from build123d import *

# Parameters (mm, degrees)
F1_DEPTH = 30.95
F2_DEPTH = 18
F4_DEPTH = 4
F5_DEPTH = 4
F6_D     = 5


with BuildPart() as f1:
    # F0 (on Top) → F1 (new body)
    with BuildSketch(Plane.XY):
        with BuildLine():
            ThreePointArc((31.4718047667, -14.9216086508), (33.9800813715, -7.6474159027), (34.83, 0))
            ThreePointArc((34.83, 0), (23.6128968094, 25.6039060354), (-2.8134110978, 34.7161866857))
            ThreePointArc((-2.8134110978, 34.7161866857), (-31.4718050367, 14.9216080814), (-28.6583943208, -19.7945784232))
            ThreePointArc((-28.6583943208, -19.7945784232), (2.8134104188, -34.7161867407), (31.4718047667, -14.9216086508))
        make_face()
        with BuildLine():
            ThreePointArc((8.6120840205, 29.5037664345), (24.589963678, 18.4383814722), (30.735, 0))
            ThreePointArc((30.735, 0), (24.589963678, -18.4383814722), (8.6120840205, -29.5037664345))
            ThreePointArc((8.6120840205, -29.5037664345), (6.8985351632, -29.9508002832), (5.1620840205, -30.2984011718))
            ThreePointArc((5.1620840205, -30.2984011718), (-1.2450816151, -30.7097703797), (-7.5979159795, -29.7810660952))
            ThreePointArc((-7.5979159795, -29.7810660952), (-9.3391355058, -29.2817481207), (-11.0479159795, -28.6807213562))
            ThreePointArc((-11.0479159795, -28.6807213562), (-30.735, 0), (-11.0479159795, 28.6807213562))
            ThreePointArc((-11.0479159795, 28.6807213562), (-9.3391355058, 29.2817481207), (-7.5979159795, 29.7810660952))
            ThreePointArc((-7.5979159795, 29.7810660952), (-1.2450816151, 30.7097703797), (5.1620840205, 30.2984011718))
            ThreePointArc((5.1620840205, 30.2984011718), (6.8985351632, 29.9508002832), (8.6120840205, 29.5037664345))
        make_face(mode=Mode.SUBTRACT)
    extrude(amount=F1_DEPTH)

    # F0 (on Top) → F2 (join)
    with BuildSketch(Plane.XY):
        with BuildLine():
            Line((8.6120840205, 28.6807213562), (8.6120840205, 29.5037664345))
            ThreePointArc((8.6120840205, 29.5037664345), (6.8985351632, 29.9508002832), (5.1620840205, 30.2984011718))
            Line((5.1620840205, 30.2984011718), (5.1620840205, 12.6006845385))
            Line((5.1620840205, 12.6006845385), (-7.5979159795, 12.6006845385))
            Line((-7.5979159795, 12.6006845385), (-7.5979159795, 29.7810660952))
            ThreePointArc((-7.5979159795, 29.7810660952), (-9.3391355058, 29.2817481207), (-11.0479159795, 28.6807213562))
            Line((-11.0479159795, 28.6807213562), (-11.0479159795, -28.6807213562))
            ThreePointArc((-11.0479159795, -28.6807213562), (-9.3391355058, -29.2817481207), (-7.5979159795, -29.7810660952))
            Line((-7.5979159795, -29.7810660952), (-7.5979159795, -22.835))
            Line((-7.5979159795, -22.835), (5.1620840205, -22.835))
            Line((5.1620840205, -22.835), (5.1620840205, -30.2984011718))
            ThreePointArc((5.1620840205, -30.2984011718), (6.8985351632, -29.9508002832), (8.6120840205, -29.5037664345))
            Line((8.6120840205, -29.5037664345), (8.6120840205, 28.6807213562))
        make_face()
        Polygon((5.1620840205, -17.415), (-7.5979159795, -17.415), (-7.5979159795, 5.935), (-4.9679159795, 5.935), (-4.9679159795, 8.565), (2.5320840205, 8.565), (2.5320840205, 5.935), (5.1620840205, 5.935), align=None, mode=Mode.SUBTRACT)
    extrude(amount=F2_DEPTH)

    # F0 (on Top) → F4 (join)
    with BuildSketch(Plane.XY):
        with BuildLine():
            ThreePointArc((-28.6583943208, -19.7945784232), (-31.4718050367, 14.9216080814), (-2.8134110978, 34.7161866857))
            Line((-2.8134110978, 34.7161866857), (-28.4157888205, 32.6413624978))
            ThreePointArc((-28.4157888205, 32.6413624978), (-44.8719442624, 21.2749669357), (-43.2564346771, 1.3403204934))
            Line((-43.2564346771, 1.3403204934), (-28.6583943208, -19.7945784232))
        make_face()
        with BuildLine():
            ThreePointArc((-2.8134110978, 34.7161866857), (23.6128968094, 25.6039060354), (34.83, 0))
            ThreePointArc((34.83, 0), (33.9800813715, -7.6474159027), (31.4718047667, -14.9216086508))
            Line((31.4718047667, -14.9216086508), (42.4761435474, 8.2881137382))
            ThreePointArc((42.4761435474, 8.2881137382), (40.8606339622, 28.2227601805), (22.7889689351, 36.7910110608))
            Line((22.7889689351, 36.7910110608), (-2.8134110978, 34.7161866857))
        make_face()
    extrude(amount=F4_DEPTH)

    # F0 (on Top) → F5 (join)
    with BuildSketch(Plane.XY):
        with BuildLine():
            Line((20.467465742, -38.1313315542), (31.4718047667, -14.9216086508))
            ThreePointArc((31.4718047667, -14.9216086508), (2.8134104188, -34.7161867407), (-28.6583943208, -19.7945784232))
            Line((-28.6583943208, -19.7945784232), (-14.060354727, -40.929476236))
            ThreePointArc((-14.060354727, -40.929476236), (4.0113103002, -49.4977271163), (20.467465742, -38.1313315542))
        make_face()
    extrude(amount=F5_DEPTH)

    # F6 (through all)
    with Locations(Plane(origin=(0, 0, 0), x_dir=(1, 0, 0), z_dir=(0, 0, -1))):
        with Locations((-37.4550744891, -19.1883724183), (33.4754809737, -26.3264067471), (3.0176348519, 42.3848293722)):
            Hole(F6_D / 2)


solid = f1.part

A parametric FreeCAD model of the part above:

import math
import FreeCAD as App
import Part
import Sketcher


def add_polygon(sketch, points):
    """Adds a closed chain of lines whose ends are joined by coincident constraints."""
    first, n = sketch.GeometryCount, len(points)
    for a, b in zip(points, points[1:] + points[:1]):
        sketch.addGeometry(Part.LineSegment(App.Vector(*a, 0), App.Vector(*b, 0)), False)
    for i in range(n):
        sketch.addConstraint(Sketcher.Constraint("Coincident", first + i, 2, first + (i + 1) % n, 1))

doc = App.newDocument("Part")
params = doc.addObject("Spreadsheet::Sheet", "Params")
for row, (alias, value) in enumerate([
    ("sketch1_radius", "34.83 mm"),
    ("pad1_length", "30.95 mm"),
    ("sketch2_width", "7.5 mm"),
    ("sketch2_width2", "12.76 mm"),
    ("sketch2_height", "23.35 mm"),
    ("pad2_length", "18 mm"),
    ("sketch3_radius", "20 mm"),
    ("sketch3_radius2", "34.83 mm"),
    ("pad3_length", "4 mm"),
    ("sketch4_radius", "20 mm"),
    ("sketch4_radius2", "34.83 mm"),
    ("pad4_length", "4 mm"),
    ("sketch5_diameter", "5 mm"),
    ("hole_diameter", "5 mm"),
], start=1):
    params.set(f"A{row}", alias)
    params.set(f"B{row}", "=" + value)
    params.setAlias(f"B{row}", alias)

body = doc.addObject("PartDesign::Body", "Body")

# Sketch on XY plane
sketch1 = body.newObject("Sketcher::SketchObject", "Sketch")
sketch1.AttachmentSupport = (doc.getObject("XY_Plane"), [""])
sketch1.MapMode = "FlatFace"
sketch1.addGeometry([
    Part.ArcOfCircle(Part.Circle(App.Vector(0, 0, 0), App.Vector(0, 0, 1), 34.83), math.radians(-25.366858), math.radians(0)),  # 0
    Part.ArcOfCircle(Part.Circle(App.Vector(0, 0, 0), App.Vector(0, 0, 1), 34.83), math.radians(0), math.radians(94.633144)),  # 1
    Part.ArcOfCircle(Part.Circle(App.Vector(0, 0, 0), App.Vector(0, 0, 1), 34.83), math.radians(94.633144), math.radians(214.633143)),  # 2
    Part.ArcOfCircle(Part.Circle(App.Vector(0, 0, 0), App.Vector(0, 0, 1), 34.83), math.radians(-145.366857), math.radians(-25.366858)),  # 3
    Part.ArcOfCircle(Part.Circle(App.Vector(0, 0, 0), App.Vector(0, 0, 1), 30.735), math.radians(73.727592), math.radians(80.331085)),  # 4
    Part.ArcOfCircle(Part.Circle(App.Vector(0, 0, 0), App.Vector(0, 0, 1), 30.735), math.radians(0), math.radians(73.727592)),  # 5
    Part.ArcOfCircle(Part.Circle(App.Vector(0, 0, 0), App.Vector(0, 0, 1), 30.735), math.radians(-73.727592), math.radians(0)),  # 6
    Part.ArcOfCircle(Part.Circle(App.Vector(0, 0, 0), App.Vector(0, 0, 1), 30.735), math.radians(-80.331085), math.radians(-73.727592)),  # 7
    Part.ArcOfCircle(Part.Circle(App.Vector(0, 0, 0), App.Vector(0, 0, 1), 30.735), math.radians(-104.312315), math.radians(-80.331085)),  # 8
    Part.ArcOfCircle(Part.Circle(App.Vector(0, 0, 0), App.Vector(0, 0, 1), 30.735), math.radians(-111.066862), math.radians(-104.312315)),  # 9
    Part.ArcOfCircle(Part.Circle(App.Vector(0, 0, 0), App.Vector(0, 0, 1), 30.735), math.radians(111.066862), math.radians(248.933138)),  # 10
    Part.ArcOfCircle(Part.Circle(App.Vector(0, 0, 0), App.Vector(0, 0, 1), 30.735), math.radians(104.312315), math.radians(111.066862)),  # 11
    Part.ArcOfCircle(Part.Circle(App.Vector(0, 0, 0), App.Vector(0, 0, 1), 30.735), math.radians(80.331085), math.radians(104.312315)),  # 12
], False)
sketch1.addConstraint([
    Sketcher.Constraint("Tangent", 0, 2, 1, 1),
    Sketcher.Constraint("Tangent", 1, 2, 2, 1),
    Sketcher.Constraint("Tangent", 2, 2, 3, 1),
    Sketcher.Constraint("Tangent", 3, 2, 0, 1),
    Sketcher.Constraint("Tangent", 4, 1, 5, 2),
    Sketcher.Constraint("Tangent", 5, 1, 6, 2),
    Sketcher.Constraint("Tangent", 6, 1, 7, 2),
    Sketcher.Constraint("Tangent", 7, 1, 8, 2),
    Sketcher.Constraint("Tangent", 8, 1, 9, 2),
    Sketcher.Constraint("Tangent", 9, 1, 10, 2),
    Sketcher.Constraint("Tangent", 10, 1, 11, 2),
    Sketcher.Constraint("Tangent", 11, 1, 12, 2),
    Sketcher.Constraint("Tangent", 12, 1, 4, 2),
    Sketcher.Constraint("Coincident", 0, 3, -1, 1),
    Sketcher.Constraint("Coincident", 4, 3, -1, 1),
    Sketcher.Constraint("Coincident", 6, 3, -1, 1),
    Sketcher.Constraint("Coincident", 8, 3, -1, 1),
    Sketcher.Constraint("Coincident", 10, 3, -1, 1),
    Sketcher.Constraint("Equal", 0, 1),
    Sketcher.Constraint("PointOnObject", 0, 2, -1),
    Sketcher.Constraint("PointOnObject", 5, 1, -1),
    Sketcher.Constraint("Vertical", 4, 1, 6, 1),
    Sketcher.Constraint("Vertical", 9, 1, 10, 1),
    Sketcher.Constraint("Vertical", 8, 1, 11, 1),
    Sketcher.Constraint("Vertical", 7, 1, 12, 1),
    Sketcher.Constraint("Radius", 0, 34.83),
    Sketcher.Constraint("Radius", 4, 30.735),
    Sketcher.Constraint("DistanceX", 7, 1, 6, 1, 3.45),
    Sketcher.Constraint("DistanceX", 8, 1, 7, 1, 12.76),
    Sketcher.Constraint("DistanceX", 9, 1, 8, 1, 3.45),
    Sketcher.Constraint("DistanceY", 7, 1, -1, 1, 30.298401),
    Sketcher.Constraint("DistanceX", 1, 2, -1, 1, 2.813411),
    Sketcher.Constraint("DistanceY", 2, 2, -1, 1, 19.794578),
    Sketcher.Constraint("DistanceY", 3, 2, -1, 1, 14.921609),
])
sketch1.setExpression("Constraints[25]", "Params.sketch1_radius")
pad1 = body.newObject("PartDesign::Pad", "Pad")
pad1.Profile = sketch1
pad1.setExpression("Length", "Params.pad1_length")

# Sketch on XY plane
sketch2 = body.newObject("Sketcher::SketchObject", "Sketch001")
sketch2.AttachmentSupport = (doc.getObject("XY_Plane"), [""])
sketch2.MapMode = "FlatFace"
sketch2.addGeometry(Part.ArcOfCircle(Part.Circle(App.Vector(0, 0, 0), App.Vector(0, 0, 1), 30.735), math.radians(73.727592), math.radians(80.331085)), False)  # 0
sketch2.addGeometry(Part.LineSegment(App.Vector(5.162084, 30.298401, 0), App.Vector(5.162084, 12.600685, 0)), False)  # 1
sketch2.addGeometry(Part.LineSegment(App.Vector(5.162084, 12.600685, 0), App.Vector(-7.597916, 12.600685, 0)), False)  # 2
sketch2.addGeometry(Part.LineSegment(App.Vector(-7.597916, 12.600685, 0), App.Vector(-7.597916, 29.781066, 0)), False)  # 3
sketch2.addGeometry(Part.ArcOfCircle(Part.Circle(App.Vector(0, 0, 0), App.Vector(0, 0, 1), 30.735), math.radians(104.312315), math.radians(111.066862)), False)  # 4
sketch2.addGeometry(Part.LineSegment(App.Vector(-11.047916, 28.680721, 0), App.Vector(-11.047916, -28.680721, 0)), False)  # 5
sketch2.addGeometry(Part.ArcOfCircle(Part.Circle(App.Vector(0, 0, 0), App.Vector(0, 0, 1), 30.735), math.radians(-111.066862), math.radians(-104.312315)), False)  # 6
sketch2.addGeometry(Part.LineSegment(App.Vector(-7.597916, -29.781066, 0), App.Vector(-7.597916, -22.835, 0)), False)  # 7
sketch2.addGeometry(Part.LineSegment(App.Vector(-7.597916, -22.835, 0), App.Vector(5.162084, -22.835, 0)), False)  # 8
sketch2.addGeometry(Part.LineSegment(App.Vector(5.162084, -22.835, 0), App.Vector(5.162084, -30.298401, 0)), False)  # 9
sketch2.addGeometry(Part.ArcOfCircle(Part.Circle(App.Vector(0, 0, 0), App.Vector(0, 0, 1), 30.735), math.radians(-80.331085), math.radians(-73.727592)), False)  # 10
sketch2.addGeometry(Part.LineSegment(App.Vector(8.612084, -29.503766, 0), App.Vector(8.612084, 29.503766, 0)), False)  # 11
add_polygon(sketch2, [(5.162084, 5.935), (5.162084, -17.415), (-7.597916, -17.415), (-7.597916, 5.935), (-4.967916, 5.935), (-4.967916, 8.565), (2.532084, 8.565), (2.532084, 5.935)])  # lines 12-19
sketch2.addConstraint([
    Sketcher.Constraint("Coincident", 0, 2, 1, 1),
    Sketcher.Constraint("Coincident", 1, 2, 2, 1),
    Sketcher.Constraint("Coincident", 2, 2, 3, 1),
    Sketcher.Constraint("Coincident", 3, 2, 4, 1),
    Sketcher.Constraint("Coincident", 4, 2, 5, 1),
    Sketcher.Constraint("Coincident", 5, 2, 6, 1),
    Sketcher.Constraint("Coincident", 6, 2, 7, 1),
    Sketcher.Constraint("Coincident", 7, 2, 8, 1),
    Sketcher.Constraint("Coincident", 8, 2, 9, 1),
    Sketcher.Constraint("Coincident", 9, 2, 10, 1),
    Sketcher.Constraint("Coincident", 10, 2, 11, 1),
    Sketcher.Constraint("Coincident", 11, 2, 0, 1),
    Sketcher.Constraint("Vertical", 1),
    Sketcher.Constraint("Horizontal", 2),
    Sketcher.Constraint("Vertical", 3),
    Sketcher.Constraint("Vertical", 5),
    Sketcher.Constraint("Vertical", 7),
    Sketcher.Constraint("Horizontal", 8),
    Sketcher.Constraint("Vertical", 9),
    Sketcher.Constraint("Vertical", 11),
    Sketcher.Constraint("Vertical", 12),
    Sketcher.Constraint("Horizontal", 13),
    Sketcher.Constraint("Vertical", 14),
    Sketcher.Constraint("Horizontal", 15),
    Sketcher.Constraint("Vertical", 16),
    Sketcher.Constraint("Horizontal", 17),
    Sketcher.Constraint("Vertical", 18),
    Sketcher.Constraint("Horizontal", 19),
    Sketcher.Constraint("Coincident", 0, 3, -1, 1),
    Sketcher.Constraint("Coincident", 4, 3, -1, 1),
    Sketcher.Constraint("Coincident", 6, 3, -1, 1),
    Sketcher.Constraint("Coincident", 10, 3, -1, 1),
    Sketcher.Constraint("Equal", 0, 4),
    Sketcher.Constraint("Equal", 4, 6),
    Sketcher.Constraint("Equal", 6, 10),
    Sketcher.Constraint("Horizontal", 15, 2, 18, 2),
    Sketcher.Constraint("Vertical", 3, 2, 6, 2),
    Sketcher.Constraint("Vertical", 1, 2, 8, 2),
    Sketcher.Constraint("Vertical", 9, 2, 12, 2),
    Sketcher.Constraint("Vertical", 7, 2, 13, 2),
    Sketcher.Constraint("Equal", 15, 19),
    Sketcher.Constraint("Equal", 19, 16),
    Sketcher.Constraint("DistanceX", 17, 1, 17, 2, 7.5),
    Sketcher.Constraint("Radius", 0, 30.735),
    Sketcher.Constraint("DistanceX", 2, 2, 2, 1, 12.76),
    Sketcher.Constraint("DistanceY", 12, 2, 12, 1, 23.35),
    Sketcher.Constraint("DistanceX", 4, 2, 3, 2, 3.45),
    Sketcher.Constraint("DistanceX", 9, 2, 10, 2, 3.45),
    Sketcher.Constraint("DistanceY", 8, 2, 12, 2, 5.42),
    Sketcher.Constraint("DistanceY", 9, 2, 9, 1, 7.463401),
    Sketcher.Constraint("DistanceY", 7, 2, -1, 1, 22.835),
    Sketcher.Constraint("DistanceY", 3, 1, 3, 2, 17.180382),
])
sketch2.setExpression("Constraints[50]", "Params.sketch2_width")
sketch2.setExpression("Constraints[52]", "Params.sketch2_width2")
sketch2.setExpression("Constraints[53]", "Params.sketch2_height")
pad2 = body.newObject("PartDesign::Pad", "Pad001")
pad2.Profile = sketch2
pad2.setExpression("Length", "Params.pad2_length")

# Sketch on XY plane
sketch3 = body.newObject("Sketcher::SketchObject", "Sketch002")
sketch3.AttachmentSupport = (doc.getObject("XY_Plane"), [""])
sketch3.MapMode = "FlatFace"
sketch3.addGeometry([
    Part.ArcOfCircle(Part.Circle(App.Vector(0, 0, 0), App.Vector(0, 0, 1), 34.83), math.radians(94.633144), math.radians(214.633143)),  # 0
    Part.LineSegment(App.Vector(-2.813411, 34.716187, 0), App.Vector(-28.415789, 32.641362, 0)),  # 1
    Part.ArcOfCircle(Part.Circle(App.Vector(-26.800279, 12.706716, 0), App.Vector(0, 0, 1), 20), math.radians(94.633142), math.radians(214.633142)),  # 2
    Part.LineSegment(App.Vector(-43.256435, 1.34032, 0), App.Vector(-28.658394, -19.794578, 0)),  # 3
    Part.ArcOfCircle(Part.Circle(App.Vector(0, 0, 0), App.Vector(0, 0, 1), 34.83), math.radians(0), math.radians(94.633144)),  # 4
    Part.ArcOfCircle(Part.Circle(App.Vector(0, 0, 0), App.Vector(0, 0, 1), 34.83), math.radians(-25.366858), math.radians(0)),  # 5
    Part.LineSegment(App.Vector(31.471805, -14.921609, 0), App.Vector(42.476144, 8.288114, 0)),  # 6
    Part.ArcOfCircle(Part.Circle(App.Vector(24.404479, 16.856365, 0), App.Vector(0, 0, 1), 20), math.radians(-25.366858), math.radians(94.633142)),  # 7
    Part.LineSegment(App.Vector(22.788969, 36.791011, 0), App.Vector(-2.813411, 34.716187, 0)),  # 8
], False)
sketch3.addConstraint([
    Sketcher.Constraint("Tangent", 0, 1, 1, 1),
    Sketcher.Constraint("Tangent", 1, 2, 2, 1),
    Sketcher.Constraint("Tangent", 2, 2, 3, 1),
    Sketcher.Constraint("Tangent", 3, 2, 0, 2),
    Sketcher.Constraint("Tangent", 4, 1, 5, 2),
    Sketcher.Constraint("Tangent", 5, 1, 6, 1),
    Sketcher.Constraint("Tangent", 6, 2, 7, 1),
    Sketcher.Constraint("Tangent", 7, 2, 8, 1),
    Sketcher.Constraint("Tangent", 8, 2, 4, 2),
    Sketcher.Constraint("Coincident", 0, 3, -1, 1),
    Sketcher.Constraint("Coincident", 4, 3, -1, 1),
    Sketcher.Constraint("Coincident", 8, 2, 0, 1),
    Sketcher.Constraint("Equal", 4, 5),
    Sketcher.Constraint("Equal", 2, 7),
    Sketcher.Constraint("PointOnObject", 4, 1, -1),
    Sketcher.Constraint("Equal", 3, 6),
    Sketcher.Constraint("Radius", 2, 20.0),
    Sketcher.Constraint("Radius", 0, 34.83),
    Sketcher.Constraint("DistanceY", 3, 2, 2, 2, 21.134899),
    Sketcher.Constraint("DistanceX", 2, 3, -1, 1, 26.800279),
])
sketch3.setExpression("Constraints[16]", "Params.sketch3_radius")
sketch3.setExpression("Constraints[17]", "Params.sketch3_radius2")
pad3 = body.newObject("PartDesign::Pad", "Pad002")
pad3.Profile = sketch3
pad3.setExpression("Length", "Params.pad3_length")

# Sketch on XY plane
sketch4 = body.newObject("Sketcher::SketchObject", "Sketch003")
sketch4.AttachmentSupport = (doc.getObject("XY_Plane"), [""])
sketch4.MapMode = "FlatFace"
sketch4.addGeometry([
    Part.LineSegment(App.Vector(20.467466, -38.131332, 0), App.Vector(31.471805, -14.921609, 0)),
    Part.ArcOfCircle(Part.Circle(App.Vector(0, 0, 0), App.Vector(0, 0, 1), 34.83), math.radians(-145.366857), math.radians(-25.366858)),
    Part.LineSegment(App.Vector(-28.658394, -19.794578, 0), App.Vector(-14.060355, -40.929476, 0)),
    Part.ArcOfCircle(Part.Circle(App.Vector(2.395801, -29.563081, 0), App.Vector(0, 0, 1), 20), math.radians(-145.366858), math.radians(-25.366858)),
], False)
sketch4.addConstraint([
    Sketcher.Constraint("Tangent", 0, 2, 1, 2),
    Sketcher.Constraint("Tangent", 1, 1, 2, 1),
    Sketcher.Constraint("Tangent", 2, 2, 3, 1),
    Sketcher.Constraint("Tangent", 3, 2, 0, 1),
    Sketcher.Constraint("Coincident", 1, 3, -1, 1),
    Sketcher.Constraint("Radius", 3, 20.0),
    Sketcher.Constraint("Radius", 1, 34.83),
    Sketcher.Constraint("DistanceX", -1, 1, 3, 3, 2.395801),
    Sketcher.Constraint("DistanceX", 1, 1, 0, 2, 60.130199),
])
sketch4.setExpression("Constraints[5]", "Params.sketch4_radius")
sketch4.setExpression("Constraints[6]", "Params.sketch4_radius2")
pad4 = body.newObject("PartDesign::Pad", "Pad003")
pad4.Profile = sketch4
pad4.setExpression("Length", "Params.pad4_length")

# Sketch on XY plane
sketch5 = body.newObject("Sketcher::SketchObject", "Sketch004")
sketch5.AttachmentSupport = (doc.getObject("XY_Plane"), [""])
sketch5.MapMode = "FlatFace"
sketch5.addGeometry([
    Part.Circle(App.Vector(-37.455074, 19.188372, 0), App.Vector(0, 0, 1), 2.5),
    Part.Circle(App.Vector(33.475481, 26.326407, 0), App.Vector(0, 0, 1), 2.5),
    Part.Circle(App.Vector(3.017635, -42.384829, 0), App.Vector(0, 0, 1), 2.5),
], False)
sketch5.addConstraint([
    Sketcher.Constraint("Equal", 0, 1),
    Sketcher.Constraint("Equal", 1, 2),
    Sketcher.Constraint("Diameter", 0, 5.0),
    Sketcher.Constraint("DistanceY", 2, 3, 0, 3, 61.573202),
    Sketcher.Constraint("DistanceX", -1, 1, 1, 3, 33.475481),
    Sketcher.Constraint("DistanceY", 2, 3, -1, 1, 42.384829),
    Sketcher.Constraint("DistanceX", 0, 3, 2, 3, 40.472709),
    Sketcher.Constraint("DistanceX", 0, 3, -1, 1, 37.455074),
    Sketcher.Constraint("DistanceY", -1, 1, 1, 3, 26.326407),
])
sketch5.setExpression("Constraints[2]", "Params.sketch5_diameter")
doc.recompute()
hole = body.newObject("PartDesign::Hole", "Hole")
hole.Profile = sketch5
hole.ThreadType = "None"
hole.setExpression("Diameter", "Params.hole_diameter")
hole.DepthType = "ThroughAll"
hole.Reversed = True

doc.recompute()
